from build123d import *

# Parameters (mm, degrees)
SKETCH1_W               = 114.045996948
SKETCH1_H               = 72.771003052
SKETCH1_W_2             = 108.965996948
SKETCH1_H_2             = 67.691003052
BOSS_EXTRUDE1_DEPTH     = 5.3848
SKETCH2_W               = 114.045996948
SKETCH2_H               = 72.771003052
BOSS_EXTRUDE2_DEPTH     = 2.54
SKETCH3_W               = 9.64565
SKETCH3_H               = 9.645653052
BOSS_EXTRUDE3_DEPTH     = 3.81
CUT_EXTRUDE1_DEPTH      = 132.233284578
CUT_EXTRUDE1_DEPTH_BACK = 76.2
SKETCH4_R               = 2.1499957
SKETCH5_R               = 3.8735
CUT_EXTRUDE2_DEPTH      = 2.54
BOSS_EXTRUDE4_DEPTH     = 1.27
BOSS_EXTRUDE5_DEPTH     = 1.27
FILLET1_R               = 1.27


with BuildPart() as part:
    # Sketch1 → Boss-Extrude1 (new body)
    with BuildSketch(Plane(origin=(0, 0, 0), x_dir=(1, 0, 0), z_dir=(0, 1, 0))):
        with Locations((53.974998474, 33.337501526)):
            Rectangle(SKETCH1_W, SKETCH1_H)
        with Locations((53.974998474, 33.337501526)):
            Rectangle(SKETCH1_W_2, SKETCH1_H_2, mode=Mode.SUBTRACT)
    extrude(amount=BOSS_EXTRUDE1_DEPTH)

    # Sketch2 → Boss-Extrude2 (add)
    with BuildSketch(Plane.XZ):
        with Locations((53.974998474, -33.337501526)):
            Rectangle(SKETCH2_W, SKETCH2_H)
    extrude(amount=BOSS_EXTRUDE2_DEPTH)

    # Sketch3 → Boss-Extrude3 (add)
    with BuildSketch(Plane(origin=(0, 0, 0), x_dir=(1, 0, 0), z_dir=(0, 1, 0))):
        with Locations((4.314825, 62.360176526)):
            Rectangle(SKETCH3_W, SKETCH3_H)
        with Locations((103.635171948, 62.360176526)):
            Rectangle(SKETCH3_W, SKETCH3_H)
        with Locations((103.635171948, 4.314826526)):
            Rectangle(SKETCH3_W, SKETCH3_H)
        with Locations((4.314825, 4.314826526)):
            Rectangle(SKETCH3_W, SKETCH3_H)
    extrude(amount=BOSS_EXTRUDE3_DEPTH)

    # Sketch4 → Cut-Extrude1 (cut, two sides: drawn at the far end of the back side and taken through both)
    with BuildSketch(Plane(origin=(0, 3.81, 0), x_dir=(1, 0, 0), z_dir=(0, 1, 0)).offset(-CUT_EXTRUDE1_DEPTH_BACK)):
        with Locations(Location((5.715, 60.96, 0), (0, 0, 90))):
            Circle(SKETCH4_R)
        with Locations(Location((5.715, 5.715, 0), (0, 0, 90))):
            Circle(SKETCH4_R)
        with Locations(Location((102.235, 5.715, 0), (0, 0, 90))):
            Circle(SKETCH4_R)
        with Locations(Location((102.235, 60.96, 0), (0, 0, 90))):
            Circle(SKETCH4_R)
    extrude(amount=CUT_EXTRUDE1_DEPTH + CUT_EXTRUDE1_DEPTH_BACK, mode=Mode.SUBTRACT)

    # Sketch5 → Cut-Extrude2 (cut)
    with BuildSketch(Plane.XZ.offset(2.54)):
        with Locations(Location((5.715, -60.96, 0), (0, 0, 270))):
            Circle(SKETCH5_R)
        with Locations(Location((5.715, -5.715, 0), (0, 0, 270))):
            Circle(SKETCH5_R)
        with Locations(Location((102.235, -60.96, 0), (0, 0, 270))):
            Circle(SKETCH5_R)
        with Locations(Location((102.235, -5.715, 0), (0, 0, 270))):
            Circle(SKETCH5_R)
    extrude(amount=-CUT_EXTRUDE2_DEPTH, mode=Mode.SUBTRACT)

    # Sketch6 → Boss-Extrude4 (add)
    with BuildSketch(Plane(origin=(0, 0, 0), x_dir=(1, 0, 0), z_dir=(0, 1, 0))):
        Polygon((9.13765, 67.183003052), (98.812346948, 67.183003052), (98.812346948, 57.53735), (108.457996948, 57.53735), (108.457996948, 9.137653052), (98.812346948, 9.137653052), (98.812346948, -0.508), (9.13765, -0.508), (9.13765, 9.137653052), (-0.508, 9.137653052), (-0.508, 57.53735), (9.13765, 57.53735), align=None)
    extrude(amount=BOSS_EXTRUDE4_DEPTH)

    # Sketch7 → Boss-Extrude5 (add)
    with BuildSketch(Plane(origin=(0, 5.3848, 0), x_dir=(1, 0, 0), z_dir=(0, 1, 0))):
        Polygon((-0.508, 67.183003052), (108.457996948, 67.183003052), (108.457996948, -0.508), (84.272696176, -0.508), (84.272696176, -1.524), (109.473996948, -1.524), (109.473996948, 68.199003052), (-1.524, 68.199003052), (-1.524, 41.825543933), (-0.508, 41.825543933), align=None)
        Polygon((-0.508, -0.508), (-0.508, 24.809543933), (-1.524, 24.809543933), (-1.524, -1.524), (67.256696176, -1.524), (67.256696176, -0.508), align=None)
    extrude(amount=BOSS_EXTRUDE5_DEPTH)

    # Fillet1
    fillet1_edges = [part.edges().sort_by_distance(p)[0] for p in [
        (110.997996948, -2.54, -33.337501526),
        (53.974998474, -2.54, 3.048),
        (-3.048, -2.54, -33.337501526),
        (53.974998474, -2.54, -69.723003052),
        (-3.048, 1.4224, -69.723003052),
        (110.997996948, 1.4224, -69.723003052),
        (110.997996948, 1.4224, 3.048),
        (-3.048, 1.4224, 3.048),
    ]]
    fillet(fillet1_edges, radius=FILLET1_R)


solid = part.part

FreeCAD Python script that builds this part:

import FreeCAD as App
import Part
import Sketcher
from FreeCAD import Vector
Q = App.Units.Quantity


def edges_at(feature, points):
    """Names of the edges that pass closest to the given points."""
    edges = feature.Shape.Edges
    near = lambda p: min(range(len(edges)), key=lambda i: edges[i].distToShape(Part.Vertex(*p))[0])
    return sorted({f"Edge{near(p) + 1}" for p in points})

doc = App.newDocument("Part")
params = doc.addObject("Spreadsheet::Sheet", "Params")
for row, (alias, value) in enumerate([
    ("sketch1_width", "4.4899999 in"),
    ("sketch1_width2", "4.2899999 in"),
    ("sketch1_height", "2.8650001 in"),
    ("pad1_length", "0.212 in"),
    ("sketch2_width", "4.4899999 in"),
    ("sketch2_height", "2.8650001 in"),
    ("pad2_length", "0.1 in"),
    ("pad3_length", "0.15 in"),
    ("sketch5_diameter", "0.305 in"),
    ("pocket2_length", "0.1 in"),
    ("pad4_length", "0.05 in"),
    ("sketch7_width", "4.2899999 in"),
    ("sketch7_width2", "4.3699999 in"),
    ("sketch7_width3", "0.04 in"),
    ("sketch7_height", "2.6650001 in"),
    ("sketch7_height2", "2.7450001 in"),
    ("pad5_length", "0.05 in"),
    ("fillet_radius", "0.05 in"),
], start=1):
    params.set(f"A{row}", alias)
    params.set(f"B{row}", "=" + value)
    params.setAlias(f"B{row}", alias)

body = doc.addObject("PartDesign::Body", "Body")

# Sketch on XZ plane
sketch1 = doc.addObject("Sketcher::SketchObject", "Sketch")
body.addObject(sketch1)
sketch1.AttachmentSupport = (doc.XZ_Plane, [""])
sketch1.MapMode = "FlatFace"
sketch1.addGeometry(Part.LineSegment(Vector(-3.048, -69.723003, 0), Vector(-3.048, 3.048, 0)), False)
sketch1.addGeometry(Part.LineSegment(Vector(-3.048, 3.048, 0), Vector(110.997997, 3.048, 0)), False)
sketch1.addGeometry(Part.LineSegment(Vector(110.997997, 3.048, 0), Vector(110.997997, -69.723003, 0)), False)
sketch1.addGeometry(Part.LineSegment(Vector(110.997997, -69.723003, 0), Vector(-3.048, -69.723003, 0)), False)
sketch1.addGeometry(Part.LineSegment(Vector(108.457997, 0.508, 0), Vector(-0.508, 0.508, 0)), False)
sketch1.addGeometry(Part.LineSegment(Vector(-0.508, 0.508, 0), Vector(-0.508, -67.183003, 0)), False)
sketch1.addGeometry(Part.LineSegment(Vector(-0.508, -67.183003, 0), Vector(108.457997, -67.183003, 0)), False)
sketch1.addGeometry(Part.LineSegment(Vector(108.457997, -67.183003, 0), Vector(108.457997, 0.508, 0)), False)
sketch1.addConstraint(Sketcher.Constraint("Coincident", 0, 2, 1, 1))
sketch1.addConstraint(Sketcher.Constraint("Coincident", 1, 2, 2, 1))
sketch1.addConstraint(Sketcher.Constraint("Coincident", 2, 2, 3, 1))
sketch1.addConstraint(Sketcher.Constraint("Coincident", 3, 2, 0, 1))
sketch1.addConstraint(Sketcher.Constraint("Coincident", 4, 2, 5, 1))
sketch1.addConstraint(Sketcher.Constraint("Coincident", 5, 2, 6, 1))
sketch1.addConstraint(Sketcher.Constraint("Coincident", 6, 2, 7, 1))
sketch1.addConstraint(Sketcher.Constraint("Coincident", 7, 2, 4, 1))
sketch1.addConstraint(Sketcher.Constraint("Vertical", 0))
sketch1.addConstraint(Sketcher.Constraint("Horizontal", 1))
sketch1.addConstraint(Sketcher.Constraint("Vertical", 2))
sketch1.addConstraint(Sketcher.Constraint("Horizontal", 3))
sketch1.addConstraint(Sketcher.Constraint("Horizontal", 4))
sketch1.addConstraint(Sketcher.Constraint("Vertical", 5))
sketch1.addConstraint(Sketcher.Constraint("Horizontal", 6))
sketch1.addConstraint(Sketcher.Constraint("Vertical", 7))
sketch1.addConstraint(Sketcher.Constraint("DistanceX", 1, 1, 1, 2, Q("4.4899999 in")))
sketch1.addConstraint(Sketcher.Constraint("DistanceX", 4, 2, 4, 1, Q("4.2899999 in")))
sketch1.addConstraint(Sketcher.Constraint("DistanceX", 0, 2, 4, 2, Q("0.1 in")))
sketch1.addConstraint(Sketcher.Constraint("DistanceY", 4, 2, 0, 2, Q("0.1 in")))
sketch1.addConstraint(Sketcher.Constraint("DistanceY", 3, 2, 5, 2, Q("0.1 in")))
sketch1.addConstraint(Sketcher.Constraint("DistanceY", 0, 1, 0, 2, Q("2.8650001 in")))
sketch1.addConstraint(Sketcher.Constraint("DistanceX", 0, 2, -1, 1, Q("0.12 in")))
sketch1.addConstraint(Sketcher.Constraint("DistanceY", -1, 1, 0, 2, Q("0.12 in")))
sketch1.setExpression("Constraints[16]", "Params.sketch1_width")
sketch1.setExpression("Constraints[17]", "Params.sketch1_width2")
sketch1.setExpression("Constraints[21]", "Params.sketch1_height")
pad1 = doc.addObject("PartDesign::Pad", "Pad")
body.addObject(pad1)
pad1.Profile = sketch1
pad1.setExpression("Length", "Params.pad1_length")
pad1.Reversed = True

# Sketch on XZ plane
sketch2 = doc.addObject("Sketcher::SketchObject", "Sketch001")
body.addObject(sketch2)
sketch2.AttachmentSupport = (doc.XZ_Plane, [""])
sketch2.MapMode = "FlatFace"
sketch2.addGeometry(Part.LineSegment(Vector(-3.048, 3.048, 0), Vector(-3.048, -69.723003, 0)), False)
sketch2.addGeometry(Part.LineSegment(Vector(-3.048, -69.723003, 0), Vector(110.997997, -69.723003, 0)), False)
sketch2.addGeometry(Part.LineSegment(Vector(110.997997, -69.723003, 0), Vector(110.997997, 3.048, 0)), False)
sketch2.addGeometry(Part.LineSegment(Vector(110.997997, 3.048, 0), Vector(-3.048, 3.048, 0)), False)
sketch2.addConstraint(Sketcher.Constraint("Coincident", 0, 2, 1, 1))
sketch2.addConstraint(Sketcher.Constraint("Coincident", 1, 2, 2, 1))
sketch2.addConstraint(Sketcher.Constraint("Coincident", 2, 2, 3, 1))
sketch2.addConstraint(Sketcher.Constraint("Coincident", 3, 2, 0, 1))
sketch2.addConstraint(Sketcher.Constraint("Vertical", 0))
sketch2.addConstraint(Sketcher.Constraint("Horizontal", 1))
sketch2.addConstraint(Sketcher.Constraint("Vertical", 2))
sketch2.addConstraint(Sketcher.Constraint("Horizontal", 3))
sketch2.addConstraint(Sketcher.Constraint("DistanceX", 1, 1, 1, 2, Q("4.4899999 in")))
sketch2.addConstraint(Sketcher.Constraint("DistanceY", 0, 2, 0, 1, Q("2.8650001 in")))
sketch2.addConstraint(Sketcher.Constraint("DistanceX", 0, 2, -1, 1, Q("0.12 in")))
sketch2.addConstraint(Sketcher.Constraint("DistanceY", -1, 1, 2, 2, Q("0.12 in")))
sketch2.setExpression("Constraints[8]", "Params.sketch2_width")
sketch2.setExpression("Constraints[9]", "Params.sketch2_height")
pad2 = doc.addObject("PartDesign::Pad", "Pad001")
body.addObject(pad2)
pad2.Profile = sketch2
pad2.setExpression("Length", "Params.pad2_length")

# Sketch on XZ plane
sketch3 = doc.addObject("Sketcher::SketchObject", "Sketch002")
body.addObject(sketch3)
sketch3.AttachmentSupport = (doc.XZ_Plane, [""])
sketch3.MapMode = "FlatFace"
sketch3.addGeometry(Part.LineSegment(Vector(-0.508, -67.183003, 0), Vector(-0.508, -57.53735, 0)), False)
sketch3.addGeometry(Part.LineSegment(Vector(-0.508, -57.53735, 0), Vector(9.13765, -57.53735, 0)), False)
sketch3.addGeometry(Part.LineSegment(Vector(9.13765, -57.53735, 0), Vector(9.13765, -67.183003, 0)), False)
sketch3.addGeometry(Part.LineSegment(Vector(9.13765, -67.183003, 0), Vector(-0.508, -67.183003, 0)), False)
sketch3.addGeometry(Part.LineSegment(Vector(98.812347, -67.183003, 0), Vector(98.812347, -57.53735, 0)), False)
sketch3.addGeometry(Part.LineSegment(Vector(98.812347, -57.53735, 0), Vector(108.457997, -57.53735, 0)), False)
sketch3.addGeometry(Part.LineSegment(Vector(108.457997, -57.53735, 0), Vector(108.457997, -67.183003, 0)), False)
sketch3.addGeometry(Part.LineSegment(Vector(108.457997, -67.183003, 0), Vector(98.812347, -67.183003, 0)), False)
sketch3.addGeometry(Part.LineSegment(Vector(98.812347, -9.137653, 0), Vector(98.812347, 0.508, 0)), False)
sketch3.addGeometry(Part.LineSegment(Vector(98.812347, 0.508, 0), Vector(108.457997, 0.508, 0)), False)
sketch3.addGeometry(Part.LineSegment(Vector(108.457997, 0.508, 0), Vector(108.457997, -9.137653, 0)), False)
sketch3.addGeometry(Part.LineSegment(Vector(108.457997, -9.137653, 0), Vector(98.812347, -9.137653, 0)), False)
sketch3.addGeometry(Part.LineSegment(Vector(-0.508, -9.137653, 0), Vector(-0.508, 0.508, 0)), False)
sketch3.addGeometry(Part.LineSegment(Vector(-0.508, 0.508, 0), Vector(9.13765, 0.508, 0)), False)
sketch3.addGeometry(Part.LineSegment(Vector(9.13765, 0.508, 0), Vector(9.13765, -9.137653, 0)), False)
sketch3.addGeometry(Part.LineSegment(Vector(9.13765, -9.137653, 0), Vector(-0.508, -9.137653, 0)), False)
sketch3.addConstraint(Sketcher.Constraint("Coincident", 0, 2, 1, 1))
sketch3.addConstraint(Sketcher.Constraint("Coincident", 1, 2, 2, 1))
sketch3.addConstraint(Sketcher.Constraint("Coincident", 2, 2, 3, 1))
sketch3.addConstraint(Sketcher.Constraint("Coincident", 3, 2, 0, 1))
sketch3.addConstraint(Sketcher.Constraint("Coincident", 4, 2, 5, 1))
sketch3.addConstraint(Sketcher.Constraint("Coincident", 5, 2, 6, 1))
sketch3.addConstraint(Sketcher.Constraint("Coincident", 6, 2, 7, 1))
sketch3.addConstraint(Sketcher.Constraint("Coincident", 7, 2, 4, 1))
sketch3.addConstraint(Sketcher.Constraint("Coincident", 8, 2, 9, 1))
sketch3.addConstraint(Sketcher.Constraint("Coincident", 9, 2, 10, 1))
sketch3.addConstraint(Sketcher.Constraint("Coincident", 10, 2, 11, 1))
sketch3.addConstraint(Sketcher.Constraint("Coincident", 11, 2, 8, 1))
sketch3.addConstraint(Sketcher.Constraint("Coincident", 12, 2, 13, 1))
sketch3.addConstraint(Sketcher.Constraint("Coincident", 13, 2, 14, 1))
sketch3.addConstraint(Sketcher.Constraint("Coincident", 14, 2, 15, 1))
sketch3.addConstraint(Sketcher.Constraint("Coincident", 15, 2, 12, 1))
sketch3.addConstraint(Sketcher.Constraint("Vertical", 0))
sketch3.addConstraint(Sketcher.Constraint("Horizontal", 1))
sketch3.addConstraint(Sketcher.Constraint("Vertical", 2))
sketch3.addConstraint(Sketcher.Constraint("Horizontal", 3))
sketch3.addConstraint(Sketcher.Constraint("Vertical", 4))
sketch3.addConstraint(Sketcher.Constraint("Horizontal", 5))
sketch3.addConstraint(Sketcher.Constraint("Vertical", 6))
sketch3.addConstraint(Sketcher.Constraint("Horizontal", 7))
sketch3.addConstraint(Sketcher.Constraint("Vertical", 8))
sketch3.addConstraint(Sketcher.Constraint("Horizontal", 9))
sketch3.addConstraint(Sketcher.Constraint("Vertical", 10))
sketch3.addConstraint(Sketcher.Constraint("Horizontal", 11))
sketch3.addConstraint(Sketcher.Constraint("Vertical", 12))
sketch3.addConstraint(Sketcher.Constraint("Horizontal", 13))
sketch3.addConstraint(Sketcher.Constraint("Vertical", 14))
sketch3.addConstraint(Sketcher.Constraint("Horizontal", 15))
sketch3.addConstraint(Sketcher.Constraint("Horizontal", 1, 2, 4, 2))
sketch3.addConstraint(Sketcher.Constraint("Horizontal", 3, 2, 6, 2))
sketch3.addConstraint(Sketcher.Constraint("Horizontal", 9, 2, 12, 2))
sketch3.addConstraint(Sketcher.Constraint("Horizontal", 11, 2, 14, 2))
sketch3.addConstraint(Sketcher.Constraint("Vertical", 7, 2, 8, 2))
sketch3.addConstraint(Sketcher.Constraint("Vertical", 6, 2, 9, 2))
sketch3.addConstraint(Sketcher.Constraint("Vertical", 3, 2, 12, 2))
sketch3.addConstraint(Sketcher.Constraint("Vertical", 2, 2, 13, 2))
sketch3.addConstraint(Sketcher.Constraint("Equal", 3, 5))
sketch3.addConstraint(Sketcher.Constraint("Equal", 6, 8))
sketch3.addConstraint(Sketcher.Constraint("DistanceX", 0, 2, -1, 1, Q("0.02 in")))
sketch3.addConstraint(Sketcher.Constraint("DistanceX", -1, 1, 5, 2, Q("4.2699999 in")))
sketch3.addConstraint(Sketcher.Constraint("DistanceY", -1, 1, 8, 2, Q("0.02 in")))
sketch3.addConstraint(Sketcher.Constraint("DistanceY", 2, 2, -1, 1, Q("2.6450001 in")))
sketch3.addConstraint(Sketcher.Constraint("DistanceX", 1, 2, 4, 2, Q("3.5304999 in")))
sketch3.addConstraint(Sketcher.Constraint("DistanceY", 5, 2, 10, 2, Q("1.9054999 in")))
pad3 = doc.addObject("PartDesign::Pad", "Pad002")
body.addObject(pad3)
pad3.Profile = sketch3
pad3.setExpression("Length", "Params.pad3_length")
pad3.Reversed = True

# Sketch on XZ plane
sketch4 = doc.addObject("Sketcher::SketchObject", "Sketch003")
body.addObject(sketch4)
sketch4.AttachmentSupport = (doc.XZ_Plane, [""])
sketch4.MapMode = "FlatFace"
sketch4.AttachmentOffset = App.Placement(Vector(0, 0, -0.15 * 25.4), App.Rotation())
sketch4.addGeometry(Part.Circle(Vector(5.715, -60.96, 0), Vector(0, 0, 1), 2.149996), False)
sketch4.addGeometry(Part.Circle(Vector(5.715, -5.715, 0), Vector(0, 0, 1), 2.149996), False)
sketch4.addGeometry(Part.Circle(Vector(102.235, -5.715, 0), Vector(0, 0, 1), 2.149996), False)
sketch4.addGeometry(Part.Circle(Vector(102.235, -60.96, 0), Vector(0, 0, 1), 2.149996), False)
sketch4.addConstraint(Sketcher.Constraint("Equal", 0, 1))
sketch4.addConstraint(Sketcher.Constraint("Equal", 1, 2))
sketch4.addConstraint(Sketcher.Constraint("Equal", 2, 3))
sketch4.addConstraint(Sketcher.Constraint("Horizontal", 1, 3, 2, 3))
sketch4.addConstraint(Sketcher.Constraint("Horizontal", 0, 3, 3, 3))
sketch4.addConstraint(Sketcher.Constraint("Vertical", 0, 3, 1, 3))
sketch4.addConstraint(Sketcher.Constraint("Vertical", 2, 3, 3, 3))
sketch4.addConstraint(Sketcher.Constraint("DistanceY", 0, 3, -1, 1, Q("2.4 in")))
sketch4.addConstraint(Sketcher.Constraint("DistanceX", 1, 3, 2, 3, Q("3.8 in")))
sketch4.addConstraint(Sketcher.Constraint("Diameter", 0, 4.299991))
sketch4.addConstraint(Sketcher.Constraint("DistanceX", -1, 1, 0, 3, Q("0.225 in")))
sketch4.addConstraint(Sketcher.Constraint("DistanceY", 1, 3, -1, 1, Q("0.225 in")))
pocket1 = doc.addObject("PartDesign::Pocket", "Pocket")
body.addObject(pocket1)
pocket1.Profile = sketch4
pocket1.Type = "ThroughAll"
pocket1.Midplane = True

# Sketch on XZ plane
sketch5 = doc.addObject("Sketcher::SketchObject", "Sketch004")
body.addObject(sketch5)
sketch5.AttachmentSupport = (doc.XZ_Plane, [""])
sketch5.MapMode = "FlatFace"
sketch5.AttachmentOffset = App.Placement(Vector(0, 0, 0.1 * 25.4), App.Rotation())
sketch5.addGeometry(Part.Circle(Vector(5.715, -60.96, 0), Vector(0, 0, 1), 3.8735), False)
sketch5.addGeometry(Part.Circle(Vector(5.715, -5.715, 0), Vector(0, 0, 1), 3.8735), False)
sketch5.addGeometry(Part.Circle(Vector(102.235, -60.96, 0), Vector(0, 0, 1), 3.8735), False)
sketch5.addGeometry(Part.Circle(Vector(102.235, -5.715, 0), Vector(0, 0, 1), 3.8735), False)
sketch5.addConstraint(Sketcher.Constraint("Equal", 0, 1))
sketch5.addConstraint(Sketcher.Constraint("Equal", 1, 2))
sketch5.addConstraint(Sketcher.Constraint("Equal", 2, 3))
sketch5.addConstraint(Sketcher.Constraint("Horizontal", 0, 3, 2, 3))
sketch5.addConstraint(Sketcher.Constraint("Horizontal", 1, 3, 3, 3))
sketch5.addConstraint(Sketcher.Constraint("Vertical", 0, 3, 1, 3))
sketch5.addConstraint(Sketcher.Constraint("Vertical", 2, 3, 3, 3))
sketch5.addConstraint(Sketcher.Constraint("Diameter", 0, Q("0.305 in")))
sketch5.addConstraint(Sketcher.Constraint("DistanceY", 0, 3, -1, 1, Q("2.4 in")))
sketch5.addConstraint(Sketcher.Constraint("DistanceX", 0, 3, 2, 3, Q("3.8 in")))
sketch5.addConstraint(Sketcher.Constraint("DistanceX", -1, 1, 0, 3, Q("0.225 in")))
sketch5.addConstraint(Sketcher.Constraint("DistanceY", 1, 3, -1, 1, Q("0.225 in")))
sketch5.setExpression("Constraints[7]", "Params.sketch5_diameter")
pocket2 = doc.addObject("PartDesign::Pocket", "Pocket001")
body.addObject(pocket2)
pocket2.Profile = sketch5
pocket2.setExpression("Length", "Params.pocket2_length")

# Sketch on XZ plane
sketch6 = doc.addObject("Sketcher::SketchObject", "Sketch005")
body.addObject(sketch6)
sketch6.AttachmentSupport = (doc.XZ_Plane, [""])
sketch6.MapMode = "FlatFace"
sketch6.addGeometry(Part.LineSegment(Vector(98.812347, -67.183003, 0), Vector(9.13765, -67.183003, 0)), False)
sketch6.addGeometry(Part.LineSegment(Vector(9.13765, -67.183003, 0), Vector(9.13765, -57.53735, 0)), False)
sketch6.addGeometry(Part.LineSegment(Vector(9.13765, -57.53735, 0), Vector(-0.508, -57.53735, 0)), False)
sketch6.addGeometry(Part.LineSegment(Vector(-0.508, -57.53735, 0), Vector(-0.508, -9.137653, 0)), False)
sketch6.addGeometry(Part.LineSegment(Vector(-0.508, -9.137653, 0), Vector(9.13765, -9.137653, 0)), False)
sketch6.addGeometry(Part.LineSegment(Vector(9.13765, -9.137653, 0), Vector(9.13765, 0.508, 0)), False)
sketch6.addGeometry(Part.LineSegment(Vector(9.13765, 0.508, 0), Vector(98.812347, 0.508, 0)), False)
sketch6.addGeometry(Part.LineSegment(Vector(98.812347, 0.508, 0), Vector(98.812347, -9.137653, 0)), False)
sketch6.addGeometry(Part.LineSegment(Vector(98.812347, -9.137653, 0), Vector(108.457997, -9.137653, 0)), False)
sketch6.addGeometry(Part.LineSegment(Vector(108.457997, -9.137653, 0), Vector(108.457997, -57.53735, 0)), False)
sketch6.addGeometry(Part.LineSegment(Vector(108.457997, -57.53735, 0), Vector(98.812347, -57.53735, 0)), False)
sketch6.addGeometry(Part.LineSegment(Vector(98.812347, -57.53735, 0), Vector(98.812347, -67.183003, 0)), False)
sketch6.addConstraint(Sketcher.Constraint("Coincident", 0, 2, 1, 1))
sketch6.addConstraint(Sketcher.Constraint("Coincident", 1, 2, 2, 1))
sketch6.addConstraint(Sketcher.Constraint("Coincident", 2, 2, 3, 1))
sketch6.addConstraint(Sketcher.Constraint("Coincident", 3, 2, 4, 1))
sketch6.addConstraint(Sketcher.Constraint("Coincident", 4, 2, 5, 1))
sketch6.addConstraint(Sketcher.Constraint("Coincident", 5, 2, 6, 1))
sketch6.addConstraint(Sketcher.Constraint("Coincident", 6, 2, 7, 1))
sketch6.addConstraint(Sketcher.Constraint("Coincident", 7, 2, 8, 1))
sketch6.addConstraint(Sketcher.Constraint("Coincident", 8, 2, 9, 1))
sketch6.addConstraint(Sketcher.Constraint("Coincident", 9, 2, 10, 1))
sketch6.addConstraint(Sketcher.Constraint("Coincident", 10, 2, 11, 1))
sketch6.addConstraint(Sketcher.Constraint("Coincident", 11, 2, 0, 1))
sketch6.addConstraint(Sketcher.Constraint("Horizontal", 0))
sketch6.addConstraint(Sketcher.Constraint("Vertical", 1))
sketch6.addConstraint(Sketcher.Constraint("Horizontal", 2))
sketch6.addConstraint(Sketcher.Constraint("Vertical", 3))
sketch6.addConstraint(Sketcher.Constraint("Horizontal", 4))
sketch6.addConstraint(Sketcher.Constraint("Vertical", 5))
sketch6.addConstraint(Sketcher.Constraint("Horizontal", 6))
sketch6.addConstraint(Sketcher.Constraint("Vertical", 7))
sketch6.addConstraint(Sketcher.Constraint("Horizontal", 8))
sketch6.addConstraint(Sketcher.Constraint("Vertical", 9))
sketch6.addConstraint(Sketcher.Constraint("Horizontal", 10))
sketch6.addConstraint(Sketcher.Constraint("Vertical", 11))
sketch6.addConstraint(Sketcher.Constraint("Horizontal", 4, 2, 7, 2))
sketch6.addConstraint(Sketcher.Constraint("Horizontal", 2, 2, 9, 2))
sketch6.addConstraint(Sketcher.Constraint("Vertical", 1, 2, 4, 2))
sketch6.addConstraint(Sketcher.Constraint("Vertical", 7, 2, 10, 2))
sketch6.addConstraint(Sketcher.Constraint("Equal", 4, 8))
sketch6.addConstraint(Sketcher.Constraint("Equal", 1, 5))
sketch6.addConstraint(Sketcher.Constraint("DistanceX", 2, 2, -1, 1, Q("0.02 in")))
sketch6.addConstraint(Sketcher.Constraint("DistanceY", -1, 1, 5, 2, Q("0.02 in")))
sketch6.addConstraint(Sketcher.Constraint("DistanceX", -1, 1, 8, 2, Q("4.2699999 in")))
sketch6.addConstraint(Sketcher.Constraint("DistanceX", 0, 2, 0, 1, Q("3.5304999 in")))
sketch6.addConstraint(Sketcher.Constraint("DistanceY", 3, 1, 3, 2, Q("1.9054999 in")))
sketch6.addConstraint(Sketcher.Constraint("DistanceY", 0, 2, -1, 1, Q("2.6450001 in")))
pad4 = doc.addObject("PartDesign::Pad", "Pad003")
body.addObject(pad4)
pad4.Profile = sketch6
pad4.setExpression("Length", "Params.pad4_length")
pad4.Reversed = True

# Sketch on XZ plane
sketch7 = doc.addObject("Sketcher::SketchObject", "Sketch006")
body.addObject(sketch7)
sketch7.AttachmentSupport = (doc.XZ_Plane, [""])
sketch7.MapMode = "FlatFace"
sketch7.AttachmentOffset = App.Placement(Vector(0, 0, -0.212 * 25.4), App.Rotation())
sketch7.addGeometry(Part.LineSegment(Vector(-0.508, -67.183003, 0), Vector(108.457997, -67.183003, 0)), False)
sketch7.addGeometry(Part.LineSegment(Vector(108.457997, -67.183003, 0), Vector(108.457997, 0.508, 0)), False)
sketch7.addGeometry(Part.LineSegment(Vector(108.457997, 0.508, 0), Vector(84.272696, 0.508, 0)), False)
sketch7.addGeometry(Part.LineSegment(Vector(84.272696, 0.508, 0), Vector(84.272696, 1.524, 0)), False)
sketch7.addGeometry(Part.LineSegment(Vector(84.272696, 1.524, 0), Vector(109.473997, 1.524, 0)), False)
sketch7.addGeometry(Part.LineSegment(Vector(109.473997, 1.524, 0), Vector(109.473997, -68.199003, 0)), False)
sketch7.addGeometry(Part.LineSegment(Vector(109.473997, -68.199003, 0), Vector(-1.524, -68.199003, 0)), False)
sketch7.addGeometry(Part.LineSegment(Vector(-1.524, -68.199003, 0), Vector(-1.524, -41.825544, 0)), False)
sketch7.addGeometry(Part.LineSegment(Vector(-1.524, -41.825544, 0), Vector(-0.508, -41.825544, 0)), False)
sketch7.addGeometry(Part.LineSegment(Vector(-0.508, -41.825544, 0), Vector(-0.508, -67.183003, 0)), False)
sketch7.addGeometry(Part.LineSegment(Vector(-0.508, 0.508, 0), Vector(-0.508, -24.809544, 0)), False)
sketch7.addGeometry(Part.LineSegment(Vector(-0.508, -24.809544, 0), Vector(-1.524, -24.809544, 0)), False)
sketch7.addGeometry(Part.LineSegment(Vector(-1.524, -24.809544, 0), Vector(-1.524, 1.524, 0)), False)
sketch7.addGeometry(Part.LineSegment(Vector(-1.524, 1.524, 0), Vector(67.256696, 1.524, 0)), False)
sketch7.addGeometry(Part.LineSegment(Vector(67.256696, 1.524, 0), Vector(67.256696, 0.508, 0)), False)
sketch7.addGeometry(Part.LineSegment(Vector(67.256696, 0.508, 0), Vector(-0.508, 0.508, 0)), False)
sketch7.addConstraint(Sketcher.Constraint("Coincident", 0, 2, 1, 1))
sketch7.addConstraint(Sketcher.Constraint("Coincident", 1, 2, 2, 1))
sketch7.addConstraint(Sketcher.Constraint("Coincident", 2, 2, 3, 1))
sketch7.addConstraint(Sketcher.Constraint("Coincident", 3, 2, 4, 1))
sketch7.addConstraint(Sketcher.Constraint("Coincident", 4, 2, 5, 1))
sketch7.addConstraint(Sketcher.Constraint("Coincident", 5, 2, 6, 1))
sketch7.addConstraint(Sketcher.Constraint("Coincident", 6, 2, 7, 1))
sketch7.addConstraint(Sketcher.Constraint("Coincident", 7, 2, 8, 1))
sketch7.addConstraint(Sketcher.Constraint("Coincident", 8, 2, 9, 1))
sketch7.addConstraint(Sketcher.Constraint("Coincident", 9, 2, 0, 1))
sketch7.addConstraint(Sketcher.Constraint("Coincident", 10, 2, 11, 1))
sketch7.addConstraint(Sketcher.Constraint("Coincident", 11, 2, 12, 1))
sketch7.addConstraint(Sketcher.Constraint("Coincident", 12, 2, 13, 1))
sketch7.addConstraint(Sketcher.Constraint("Coincident", 13, 2, 14, 1))
sketch7.addConstraint(Sketcher.Constraint("Coincident", 14, 2, 15, 1))
sketch7.addConstraint(Sketcher.Constraint("Coincident", 15, 2, 10, 1))
sketch7.addConstraint(Sketcher.Constraint("Horizontal", 0))
sketch7.addConstraint(Sketcher.Constraint("Vertical", 1))
sketch7.addConstraint(Sketcher.Constraint("Horizontal", 2))
sketch7.addConstraint(Sketcher.Constraint("Vertical", 3))
sketch7.addConstraint(Sketcher.Constraint("Horizontal", 4))
sketch7.addConstraint(Sketcher.Constraint("Vertical", 5))
sketch7.addConstraint(Sketcher.Constraint("Horizontal", 6))
sketch7.addConstraint(Sketcher.Constraint("Vertical", 7))
sketch7.addConstraint(Sketcher.Constraint("Horizontal", 8))
sketch7.addConstraint(Sketcher.Constraint("Vertical", 9))
sketch7.addConstraint(Sketcher.Constraint("Vertical", 10))
sketch7.addConstraint(Sketcher.Constraint("Horizontal", 11))
sketch7.addConstraint(Sketcher.Constraint("Vertical", 12))
sketch7.addConstraint(Sketcher.Constraint("Horizontal", 13))
sketch7.addConstraint(Sketcher.Constraint("Vertical", 14))
sketch7.addConstraint(Sketcher.Constraint("Horizontal", 15))
sketch7.addConstraint(Sketcher.Constraint("Horizontal", 4, 2, 12, 2))
sketch7.addConstraint(Sketcher.Constraint("Horizontal", 2, 2, 14, 2))
sketch7.addConstraint(Sketcher.Constraint("Vertical", 9, 2, 10, 2))
sketch7.addConstraint(Sketcher.Constraint("Vertical", 7, 2, 11, 2))
sketch7.addConstraint(Sketcher.Constraint("Equal", 11, 3))
sketch7.addConstraint(Sketcher.Constraint("DistanceX", 0, 1, 0, 2, Q("4.2899999 in")))
sketch7.addConstraint(Sketcher.Constraint("DistanceX", 6, 2, 6, 1, Q("4.3699999 in")))
sketch7.addConstraint(Sketcher.Constraint("DistanceX", 8, 1, 8, 2, Q("0.04 in")))
sketch7.addConstraint(Sketcher.Constraint("DistanceY", 1, 1, 1, 2, Q("2.6650001 in")))
sketch7.addConstraint(Sketcher.Constraint("DistanceY", 5, 2, 5, 1, Q("2.7450001 in")))
sketch7.addConstraint(Sketcher.Constraint("DistanceX", -1, 1, 0, 2, Q("4.2699999 in")))
sketch7.addConstraint(Sketcher.Constraint("DistanceY", -1, 1, 1, 2, Q("0.02 in")))
sketch7.addConstraint(Sketcher.Constraint("DistanceX", 2, 2, 2, 1, 24.185301))
sketch7.addConstraint(Sketcher.Constraint("DistanceY", 7, 1, 7, 2, 26.373459))
sketch7.addConstraint(Sketcher.Constraint("DistanceY", 8, 2, 10, 2, 17.016))
sketch7.addConstraint(Sketcher.Constraint("DistanceX", 13, 2, 3, 2, 17.016))
sketch7.setExpression("Constraints[37]", "Params.sketch7_width")
sketch7.setExpression("Constraints[38]", "Params.sketch7_width2")
sketch7.setExpression("Constraints[39]", "Params.sketch7_width3")
sketch7.setExpression("Constraints[40]", "Params.sketch7_height")
sketch7.setExpression("Constraints[41]", "Params.sketch7_height2")
pad5 = doc.addObject("PartDesign::Pad", "Pad004")
body.addObject(pad5)
pad5.Profile = sketch7
pad5.setExpression("Length", "Params.pad5_length")
pad5.Reversed = True
doc.recompute()

fillet = doc.addObject("PartDesign::Fillet", "Fillet")
body.addObject(fillet)
fillet.Base = (pad5, edges_at(pad5, [
    (110.998, -2.54, -33.338),
    (53.975, -2.54, 3.048),
    (-3.048, -2.54, -33.338),
    (53.975, -2.54, -69.723),
    (-3.048, 1.422, -69.723),
    (110.998, 1.422, -69.723),
    (110.998, 1.422, 3.048),
    (-3.048, 1.422, 3.048),
]))
fillet.setExpression("Radius", "Params.fillet_radius")

doc.recompute()
